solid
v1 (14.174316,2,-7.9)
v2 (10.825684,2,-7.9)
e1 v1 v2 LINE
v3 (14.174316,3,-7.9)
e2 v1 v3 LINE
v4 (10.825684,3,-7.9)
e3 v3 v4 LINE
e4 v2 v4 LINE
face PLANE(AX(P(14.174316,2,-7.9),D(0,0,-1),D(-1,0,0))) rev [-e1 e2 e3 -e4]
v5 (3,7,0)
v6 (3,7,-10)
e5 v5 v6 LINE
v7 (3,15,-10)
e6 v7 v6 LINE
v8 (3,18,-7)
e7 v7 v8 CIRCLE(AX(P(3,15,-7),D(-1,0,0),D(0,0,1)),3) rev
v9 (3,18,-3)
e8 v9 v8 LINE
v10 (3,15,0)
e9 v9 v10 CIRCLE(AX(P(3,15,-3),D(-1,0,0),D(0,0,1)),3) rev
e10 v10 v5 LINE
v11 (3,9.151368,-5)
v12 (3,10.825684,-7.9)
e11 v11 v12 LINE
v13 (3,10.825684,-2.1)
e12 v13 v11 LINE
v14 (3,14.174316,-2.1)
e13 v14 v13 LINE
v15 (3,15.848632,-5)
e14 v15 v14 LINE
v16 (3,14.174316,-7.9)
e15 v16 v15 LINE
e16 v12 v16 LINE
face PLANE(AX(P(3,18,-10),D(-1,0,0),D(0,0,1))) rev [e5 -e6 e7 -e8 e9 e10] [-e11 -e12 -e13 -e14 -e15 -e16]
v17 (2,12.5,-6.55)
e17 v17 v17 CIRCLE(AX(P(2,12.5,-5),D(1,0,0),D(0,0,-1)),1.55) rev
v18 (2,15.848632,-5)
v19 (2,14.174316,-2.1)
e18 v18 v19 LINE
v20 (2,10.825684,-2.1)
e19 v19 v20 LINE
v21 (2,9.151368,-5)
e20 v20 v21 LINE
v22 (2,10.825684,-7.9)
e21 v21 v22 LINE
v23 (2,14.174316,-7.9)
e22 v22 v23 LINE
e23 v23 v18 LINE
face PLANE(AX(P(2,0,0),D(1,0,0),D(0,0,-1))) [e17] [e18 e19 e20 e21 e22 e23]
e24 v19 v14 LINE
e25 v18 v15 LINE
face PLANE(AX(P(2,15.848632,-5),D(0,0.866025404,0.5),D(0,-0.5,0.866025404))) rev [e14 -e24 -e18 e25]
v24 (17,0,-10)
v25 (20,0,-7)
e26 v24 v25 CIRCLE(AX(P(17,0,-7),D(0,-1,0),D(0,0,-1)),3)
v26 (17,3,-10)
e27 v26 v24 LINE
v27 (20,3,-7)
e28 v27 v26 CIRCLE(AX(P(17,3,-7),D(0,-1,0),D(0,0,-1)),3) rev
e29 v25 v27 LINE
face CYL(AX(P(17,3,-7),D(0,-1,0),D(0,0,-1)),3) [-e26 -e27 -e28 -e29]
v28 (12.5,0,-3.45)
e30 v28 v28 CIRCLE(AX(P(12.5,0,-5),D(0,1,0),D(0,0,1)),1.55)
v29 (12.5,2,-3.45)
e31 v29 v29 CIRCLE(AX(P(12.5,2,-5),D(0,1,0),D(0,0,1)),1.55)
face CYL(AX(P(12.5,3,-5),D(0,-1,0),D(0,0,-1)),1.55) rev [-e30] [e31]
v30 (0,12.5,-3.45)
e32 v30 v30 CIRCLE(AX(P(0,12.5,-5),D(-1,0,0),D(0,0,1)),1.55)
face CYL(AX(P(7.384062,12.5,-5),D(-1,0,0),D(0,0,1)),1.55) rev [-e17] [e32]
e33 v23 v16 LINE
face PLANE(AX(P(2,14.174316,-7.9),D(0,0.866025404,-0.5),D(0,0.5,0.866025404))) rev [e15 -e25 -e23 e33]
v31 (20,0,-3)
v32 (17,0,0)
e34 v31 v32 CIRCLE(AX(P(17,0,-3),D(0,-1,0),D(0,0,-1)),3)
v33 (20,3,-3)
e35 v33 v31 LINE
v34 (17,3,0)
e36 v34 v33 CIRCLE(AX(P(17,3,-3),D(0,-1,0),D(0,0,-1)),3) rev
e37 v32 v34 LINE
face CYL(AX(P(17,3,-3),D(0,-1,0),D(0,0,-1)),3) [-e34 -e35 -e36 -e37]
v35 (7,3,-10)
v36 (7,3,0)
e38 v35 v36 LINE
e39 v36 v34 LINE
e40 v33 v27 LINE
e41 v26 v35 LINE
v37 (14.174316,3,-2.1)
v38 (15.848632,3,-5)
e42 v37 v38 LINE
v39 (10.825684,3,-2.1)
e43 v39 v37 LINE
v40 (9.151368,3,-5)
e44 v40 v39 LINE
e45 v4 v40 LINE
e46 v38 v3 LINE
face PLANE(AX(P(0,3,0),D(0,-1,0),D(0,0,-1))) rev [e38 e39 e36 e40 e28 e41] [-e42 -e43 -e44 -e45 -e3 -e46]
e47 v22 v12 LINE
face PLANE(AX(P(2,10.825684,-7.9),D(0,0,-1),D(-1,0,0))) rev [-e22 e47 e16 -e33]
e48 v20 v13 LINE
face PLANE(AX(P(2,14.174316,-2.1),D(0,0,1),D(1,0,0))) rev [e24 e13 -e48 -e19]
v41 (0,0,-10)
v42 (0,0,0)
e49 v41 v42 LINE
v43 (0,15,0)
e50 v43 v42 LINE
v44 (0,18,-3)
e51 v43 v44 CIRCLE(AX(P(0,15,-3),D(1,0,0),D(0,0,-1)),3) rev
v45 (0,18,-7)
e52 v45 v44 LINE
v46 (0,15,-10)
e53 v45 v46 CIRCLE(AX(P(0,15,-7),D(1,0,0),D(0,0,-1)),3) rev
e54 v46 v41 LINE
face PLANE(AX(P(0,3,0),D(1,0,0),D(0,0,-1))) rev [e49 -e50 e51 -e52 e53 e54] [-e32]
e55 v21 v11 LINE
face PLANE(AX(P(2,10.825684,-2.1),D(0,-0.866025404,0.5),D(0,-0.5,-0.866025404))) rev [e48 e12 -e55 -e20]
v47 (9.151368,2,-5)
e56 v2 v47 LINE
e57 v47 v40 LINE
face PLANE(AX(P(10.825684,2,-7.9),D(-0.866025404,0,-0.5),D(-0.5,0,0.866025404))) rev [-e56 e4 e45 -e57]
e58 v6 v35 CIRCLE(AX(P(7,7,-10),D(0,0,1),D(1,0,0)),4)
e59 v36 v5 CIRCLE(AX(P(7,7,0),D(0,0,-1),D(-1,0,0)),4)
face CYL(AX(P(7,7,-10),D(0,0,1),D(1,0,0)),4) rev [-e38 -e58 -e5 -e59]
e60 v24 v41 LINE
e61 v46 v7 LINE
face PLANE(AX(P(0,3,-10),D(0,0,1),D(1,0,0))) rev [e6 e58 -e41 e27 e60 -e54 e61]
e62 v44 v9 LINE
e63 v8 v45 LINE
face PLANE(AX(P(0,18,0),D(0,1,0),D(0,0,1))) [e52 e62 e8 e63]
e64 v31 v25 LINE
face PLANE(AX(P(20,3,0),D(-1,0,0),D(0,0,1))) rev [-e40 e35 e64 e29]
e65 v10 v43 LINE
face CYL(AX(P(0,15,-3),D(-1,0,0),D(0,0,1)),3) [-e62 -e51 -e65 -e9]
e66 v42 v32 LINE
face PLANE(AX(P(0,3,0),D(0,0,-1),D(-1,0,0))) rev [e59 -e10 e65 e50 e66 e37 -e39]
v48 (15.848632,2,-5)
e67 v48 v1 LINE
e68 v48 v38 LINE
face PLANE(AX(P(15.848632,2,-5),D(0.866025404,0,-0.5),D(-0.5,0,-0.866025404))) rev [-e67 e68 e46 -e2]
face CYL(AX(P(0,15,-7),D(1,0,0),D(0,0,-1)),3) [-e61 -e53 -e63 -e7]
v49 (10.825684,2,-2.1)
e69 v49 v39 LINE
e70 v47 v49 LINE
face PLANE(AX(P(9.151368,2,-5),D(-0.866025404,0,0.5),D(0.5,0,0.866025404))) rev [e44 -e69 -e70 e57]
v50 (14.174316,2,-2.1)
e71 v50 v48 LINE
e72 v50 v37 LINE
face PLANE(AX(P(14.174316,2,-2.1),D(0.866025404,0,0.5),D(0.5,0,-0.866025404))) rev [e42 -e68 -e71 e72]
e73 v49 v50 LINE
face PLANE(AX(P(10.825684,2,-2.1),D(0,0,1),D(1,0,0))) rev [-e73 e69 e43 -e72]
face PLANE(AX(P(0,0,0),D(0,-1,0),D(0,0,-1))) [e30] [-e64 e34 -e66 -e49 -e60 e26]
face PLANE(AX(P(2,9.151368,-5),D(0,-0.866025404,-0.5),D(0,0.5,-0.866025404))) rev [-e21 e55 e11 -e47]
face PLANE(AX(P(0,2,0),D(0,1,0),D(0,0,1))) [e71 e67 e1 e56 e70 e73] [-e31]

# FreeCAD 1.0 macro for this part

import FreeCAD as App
import Part
import Sketcher
Q = App.Units.Quantity


def edges_at(feature, points):
    """Names of the edges that pass closest to the given points."""
    edges = feature.Shape.Edges
    near = lambda p: min(range(len(edges)), key=lambda i: edges[i].distToShape(Part.Vertex(*p))[0])
    return sorted({f"Edge{near(p) + 1}" for p in points})


def add_polygon(sketch, points):
    """Adds a closed chain of lines whose ends are joined by coincident constraints."""
    first, n = sketch.GeometryCount, len(points)
    for a, b in zip(points, points[1:] + points[:1]):
        sketch.addGeometry(Part.LineSegment(App.Vector(*a, 0), App.Vector(*b, 0)), False)
    for i in range(n):
        sketch.addConstraint(Sketcher.Constraint("Coincident", first + i, 2, first + (i + 1) % n, 1))

doc = App.newDocument("Part")
body = doc.addObject("PartDesign::Body", "Body")

# Sketch on XZ plane
sketch1 = body.newObject("Sketcher::SketchObject", "Sketch")
sketch1.AttachmentSupport = (doc.getObject("XZ_Plane"), [""])
sketch1.MapMode = "FlatFace"
add_polygon(sketch1, [(0, -10), (0, 0), (20, 0), (20, -10)])  # lines 0-3
sketch1.addGeometry(Part.Circle(App.Vector(12.5, -5, 0), App.Vector(0, 0, 1), 1.55), False)  # 4
sketch1.addConstraint([
    Sketcher.Constraint("Vertical", 0),
    Sketcher.Constraint("Horizontal", 1),
    Sketcher.Constraint("Vertical", 2),
    Sketcher.Constraint("Horizontal", 3),
    Sketcher.Constraint("Coincident", 0, 2, -1, 1),
    Sketcher.Constraint("Diameter", 4, Q("3.1 mm")),
    Sketcher.Constraint("DistanceX", 1, 1, 1, 2, Q("20 mm")),
    Sketcher.Constraint("DistanceY", 0, 1, 0, 2, Q("10 mm")),
    Sketcher.Constraint("DistanceY", 4, 3, -1, 1, Q("5 mm")),
    Sketcher.Constraint("DistanceX", -1, 1, 4, 3, Q("12.5 mm")),
])
pad1 = body.newObject("PartDesign::Pad", "Pad")
pad1.Profile = sketch1
pad1.Length = 3
pad1.Reversed = True

# Sketch on XZ plane
sketch2 = body.newObject("Sketcher::SketchObject", "Sketch001")
sketch2.AttachmentSupport = (doc.getObject("XZ_Plane"), [""])
sketch2.MapMode = "FlatFace"
sketch2.AttachmentOffset = App.Placement(App.Vector(0, 0, -3), App.Rotation())
add_polygon(sketch2, [(0, -10), (0, 0), (3, 0), (3, -10)])  # lines 0-3
sketch2.addConstraint([
    Sketcher.Constraint("Vertical", 0),
    Sketcher.Constraint("Horizontal", 1),
    Sketcher.Constraint("Vertical", 2),
    Sketcher.Constraint("Horizontal", 3),
    Sketcher.Constraint("Coincident", 0, 2, -1, 1),
    Sketcher.Constraint("DistanceX", 1, 1, 1, 2, Q("3 mm")),
    Sketcher.Constraint("DistanceY", 0, 1, 0, 2, Q("10 mm")),
])
pad2 = body.newObject("PartDesign::Pad", "Pad001")
pad2.Profile = sketch2
pad2.Length = 15
pad2.Reversed = True

# Sketch on YZ plane
sketch3 = body.newObject("Sketcher::SketchObject", "Sketch002")
sketch3.AttachmentSupport = (doc.getObject("YZ_Plane"), [""])
sketch3.MapMode = "FlatFace"
sketch3.addGeometry(Part.Circle(App.Vector(12.5, -5, 0), App.Vector(0, 0, 1), 1.55), False)
sketch3.addConstraint([
    Sketcher.Constraint("Diameter", 0, Q("3.1 mm")),
    Sketcher.Constraint("DistanceY", 0, 3, -1, 1, Q("5 mm")),
    Sketcher.Constraint("DistanceX", -1, 1, 0, 3, Q("12.5 mm")),
])
pocket1 = body.newObject("PartDesign::Pocket", "Pocket")
pocket1.Profile = sketch3
pocket1.Length = 3
pocket1.Reversed = True

# Sketch on YZ plane
sketch4 = body.newObject("Sketcher::SketchObject", "Sketch003")
sketch4.AttachmentSupport = (doc.getObject("YZ_Plane"), [""])
sketch4.MapMode = "FlatFace"
sketch4.AttachmentOffset = App.Placement(App.Vector(0, 0, 3), App.Rotation())
add_polygon(sketch4, [(14.174316, -7.9), (15.848632, -5), (14.174316, -2.1), (10.825684, -2.1), (9.151368, -5), (10.825684, -7.9)])  # lines 0-5
sketch4.addConstraint([
    Sketcher.Constraint("Horizontal", 2),
    Sketcher.Constraint("Horizontal", 5),
    Sketcher.Constraint("Parallel", 0, 3),
    Sketcher.Constraint("Parallel", 1, 4),
    Sketcher.Constraint("Horizontal", 0, 2, 3, 2),
    Sketcher.Constraint("Vertical", 2, 2, 4, 2),
    Sketcher.Constraint("Vertical", 1, 2, 5, 2),
    Sketcher.Constraint("Angle", 0, Q("60 deg")),
    Sketcher.Constraint("DistanceY", 0, 2, -1, 1, Q("5 mm")),
    Sketcher.Constraint("DistanceY", 1, 2, -1, 1, Q("2.1 mm")),
    Sketcher.Constraint("DistanceX", 2, 2, 2, 1, Q("3.348632 mm")),
    Sketcher.Constraint("DistanceX", -1, 1, 0, 2, Q("15.848632 mm")),
])
pocket2 = body.newObject("PartDesign::Pocket", "Pocket001")
pocket2.Profile = sketch4
pocket2.Length = 1
doc.recompute()

fillet = body.newObject("PartDesign::Fillet", "Fillet")
fillet.Base = (pocket2, edges_at(pocket2, [
    (1.5, 18, 0),
    (1.5, 18, -10),
    (20, 1.5, -10),
    (20, 1.5, 0),
]))
fillet.Radius = 3
doc.recompute()

fillet2 = body.newObject("PartDesign::Fillet", "Fillet001")
fillet2.Base = (fillet, edges_at(fillet, [(3, 3, -5)]))
fillet2.Radius = 4

# Sketch on XZ plane
sketch5 = body.newObject("Sketcher::SketchObject", "Sketch004")
sketch5.AttachmentSupport = (doc.getObject("XZ_Plane"), [""])
sketch5.MapMode = "FlatFace"
sketch5.AttachmentOffset = App.Placement(App.Vector(0, 0, -3), App.Rotation())
add_polygon(sketch5, [(14.174316, -7.9), (10.825684, -7.9), (9.151368, -5), (10.825684, -2.1), (14.174316, -2.1), (15.848632, -5)])  # lines 0-5
sketch5.addConstraint([
    Sketcher.Constraint("Horizontal", 0),
    Sketcher.Constraint("Horizontal", 3),
    Sketcher.Constraint("Parallel", 1, 4),
    Sketcher.Constraint("Parallel", 2, 5),
    Sketcher.Constraint("Horizontal", 1, 2, 4, 2),
    Sketcher.Constraint("Vertical", 0, 2, 2, 2),
    Sketcher.Constraint("Vertical", 3, 2, 5, 2),
    Sketcher.Constraint("Angle", 1, Q("120 deg")),
    Sketcher.Constraint("DistanceY", 1, 2, -1, 1, Q("5 mm")),
    Sketcher.Constraint("DistanceY", 0, 2, -1, 1, Q("7.9 mm")),
    Sketcher.Constraint("DistanceX", 0, 2, 0, 1, Q("3.348632 mm")),
    Sketcher.Constraint("DistanceX", -1, 1, 1, 2, Q("9.151368 mm")),
])
pocket3 = body.newObject("PartDesign::Pocket", "Pocket002")
pocket3.Profile = sketch5
pocket3.Length = 1
pocket3.Reversed = True

doc.recompute()
